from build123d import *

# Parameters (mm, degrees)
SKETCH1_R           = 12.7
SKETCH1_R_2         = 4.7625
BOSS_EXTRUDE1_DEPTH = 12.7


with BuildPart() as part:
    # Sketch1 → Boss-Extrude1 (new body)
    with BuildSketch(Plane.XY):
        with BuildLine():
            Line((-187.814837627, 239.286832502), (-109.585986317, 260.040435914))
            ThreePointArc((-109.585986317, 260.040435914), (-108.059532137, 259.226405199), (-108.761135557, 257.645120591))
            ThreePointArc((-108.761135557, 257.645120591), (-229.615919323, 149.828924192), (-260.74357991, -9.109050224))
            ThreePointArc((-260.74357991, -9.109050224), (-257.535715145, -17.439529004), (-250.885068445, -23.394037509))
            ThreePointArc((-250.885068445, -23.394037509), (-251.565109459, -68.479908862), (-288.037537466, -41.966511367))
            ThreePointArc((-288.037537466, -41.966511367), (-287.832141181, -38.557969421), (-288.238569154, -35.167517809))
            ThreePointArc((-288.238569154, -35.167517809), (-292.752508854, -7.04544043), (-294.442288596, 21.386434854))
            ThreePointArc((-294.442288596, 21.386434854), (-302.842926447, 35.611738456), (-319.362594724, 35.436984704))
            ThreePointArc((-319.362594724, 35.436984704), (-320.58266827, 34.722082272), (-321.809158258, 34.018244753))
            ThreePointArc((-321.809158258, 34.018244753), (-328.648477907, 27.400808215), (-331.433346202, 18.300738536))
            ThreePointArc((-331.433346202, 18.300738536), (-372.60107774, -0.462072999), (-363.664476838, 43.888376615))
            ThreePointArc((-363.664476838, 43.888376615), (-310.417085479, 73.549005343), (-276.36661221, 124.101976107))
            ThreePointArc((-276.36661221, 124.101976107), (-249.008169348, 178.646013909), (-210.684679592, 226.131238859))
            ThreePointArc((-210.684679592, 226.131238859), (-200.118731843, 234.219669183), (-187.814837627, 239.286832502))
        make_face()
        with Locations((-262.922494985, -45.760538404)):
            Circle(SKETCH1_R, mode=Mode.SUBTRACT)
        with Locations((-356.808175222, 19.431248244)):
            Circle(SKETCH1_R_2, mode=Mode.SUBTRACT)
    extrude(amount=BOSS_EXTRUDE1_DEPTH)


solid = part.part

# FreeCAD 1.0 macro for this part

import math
import FreeCAD as App
import Part
import Sketcher
Q = App.Units.Quantity

doc = App.newDocument("Part")
body = doc.addObject("PartDesign::Body", "Body")

sketch1 = body.newObject("Sketcher::SketchObject", "Sketch")
sketch1.AttachmentSupport = (doc.getObject("XY_Plane"), [""])
sketch1.MapMode = "FlatFace"
sketch1.addGeometry([
    Part.LineSegment(App.Vector(-109.6, 260, 0), App.Vector(-187.8, 239.3, 0)),
    Part.ArcOfCircle(Part.Circle(App.Vector(-174.8, 190.2, 0), App.Vector(0, 0, 1), 50.8), math.radians(105), math.radians(135)),
    Part.ArcOfCircle(Part.Circle(App.Vector(-8.9, 24.1, 0), App.Vector(0, 0, 1), 285.5), math.radians(135), math.radians(159)),
    Part.ArcOfCircle(Part.Circle(App.Vector(-399, 170, 0), App.Vector(0, 0, 1), 130.9), math.radians(-74), math.radians(-21)),
    Part.ArcOfCircle(Part.Circle(App.Vector(-356.8, 19.4, 0), App.Vector(0, 0, 1), 25.4), math.radians(106), math.radians(357)),
    Part.ArcOfCircle(Part.Circle(App.Vector(-312.4, 17.5, 0), App.Vector(0, 0, 1), 19), math.radians(120), math.radians(177)),
    Part.ArcOfCircle(Part.Circle(App.Vector(-399, 170, 0), App.Vector(0, 0, 1), 156.3), math.radians(-60.41), math.radians(-59.37)),
    Part.ArcOfCircle(Part.Circle(App.Vector(-311, 21.2, 0), App.Vector(0, 0, 1), 16.5), math.radians(1), math.radians(121)),
    Part.ArcOfCircle(Part.Circle(App.Vector(-8.9, 24.1, 0), App.Vector(0, 0, 1), 285.5), math.radians(-179.46), math.radians(-168.02)),
    Part.ArcOfCircle(Part.Circle(App.Vector(-306.9, -39.1, 0), App.Vector(0, 0, 1), 19), math.radians(-9), math.radians(12)),
    Part.ArcOfCircle(Part.Circle(App.Vector(-262.9, -45.8, 0), App.Vector(0, 0, 1), 25.4), math.radians(171), math.radians(422)),
    Part.ArcOfCircle(Part.Circle(App.Vector(-241.9, -6.6, 0), App.Vector(0, 0, 1), 19.1), math.radians(-172), math.radians(-118)),
    Part.ArcOfCircle(Part.Circle(App.Vector(-8.9, 24.1, 0), App.Vector(0, 0, 1), 254), math.radians(113), math.radians(188)),
    Part.ArcOfCircle(Part.Circle(App.Vector(-109.3, 258.8, 0), App.Vector(0, 0, 1), 1.3), math.radians(-67), math.radians(105)),
    Part.Circle(App.Vector(-262.9, -45.8, 0), App.Vector(0, 0, 1), 12.7),
    Part.Circle(App.Vector(-356.8, 19.4, 0), App.Vector(0, 0, 1), 4.8),
], False)
sketch1.addConstraint([
    Sketcher.Constraint("Tangent", 0, 2, 1, 1),
    Sketcher.Constraint("Tangent", 1, 2, 2, 1),
    Sketcher.Constraint("Tangent", 2, 2, 3, 2),
    Sketcher.Constraint("Tangent", 3, 1, 4, 1),
    Sketcher.Constraint("Tangent", 4, 2, 5, 2),
    Sketcher.Constraint("Tangent", 5, 1, 6, 1),
    Sketcher.Constraint("Tangent", 6, 2, 7, 2),
    Sketcher.Constraint("Tangent", 7, 1, 8, 1),
    Sketcher.Constraint("Tangent", 8, 2, 9, 2),
    Sketcher.Constraint("Tangent", 9, 1, 10, 1),
    Sketcher.Constraint("Tangent", 10, 2, 11, 2),
    Sketcher.Constraint("Tangent", 11, 1, 12, 2),
    Sketcher.Constraint("Tangent", 12, 1, 13, 1),
    Sketcher.Constraint("Tangent", 13, 2, 0, 1),
    Sketcher.Constraint("Coincident", 6, 3, 3, 3),
    Sketcher.Constraint("Coincident", 8, 3, 2, 3),
    Sketcher.Constraint("Coincident", 12, 3, 2, 3),
    Sketcher.Constraint("Coincident", 14, 3, 10, 3),
    Sketcher.Constraint("Coincident", 15, 3, 4, 3),
    Sketcher.Constraint("Equal", 2, 8),
    Sketcher.Constraint("Equal", 5, 9),
    Sketcher.Constraint("Equal", 4, 10),
    Sketcher.Constraint("Equal", 9, 11),
    Sketcher.Constraint("Diameter", 14, Q("1 in")),
    Sketcher.Constraint("Radius", 1, Q("2 in")),
    Sketcher.Constraint("Radius", 4, Q("1 in")),
    Sketcher.Constraint("Radius", 12, Q("10 in")),
    Sketcher.Constraint("Radius", 5, Q("0.75 in")),
    Sketcher.Constraint("Radius", 7, Q("0.65 in")),
    Sketcher.Constraint("Radius", 13, Q("0.05 in")),
    Sketcher.Constraint("Diameter", 15, Q("0.375 in")),
    Sketcher.Constraint("DistanceX", 10, 3, 12, 3, Q("10 in")),
    Sketcher.Constraint("DistanceY", 10, 3, 12, 3, Q("2.75 in")),
    Sketcher.Constraint("Radius", 2, 285.532588),
    Sketcher.Constraint("DistanceX", 5, 3, -1, 1, Q("12.2993002 in")),
    Sketcher.Constraint("Radius", 3, 130.936925),
    Sketcher.Constraint("Radius", 6, 156.336925),
    Sketcher.Constraint("DistanceY", 2, 2, 1, 2, Q("4.0169001 in")),
    Sketcher.Constraint("DistanceY", 1, 3, 13, 2, Q("2.7502002 in")),
    Sketcher.Constraint("DistanceY", -1, 1, 3, 3, 169.964801),
    Sketcher.Constraint("DistanceX", 11, 3, -1, 1, 241.856999),
    Sketcher.Constraint("DistanceY", -1, 1, 13, 3, 258.812899),
])
pad1 = body.newObject("PartDesign::Pad", "Pad")
pad1.Profile = sketch1
pad1.Length = Q("0.5 in")

doc.recompute()
